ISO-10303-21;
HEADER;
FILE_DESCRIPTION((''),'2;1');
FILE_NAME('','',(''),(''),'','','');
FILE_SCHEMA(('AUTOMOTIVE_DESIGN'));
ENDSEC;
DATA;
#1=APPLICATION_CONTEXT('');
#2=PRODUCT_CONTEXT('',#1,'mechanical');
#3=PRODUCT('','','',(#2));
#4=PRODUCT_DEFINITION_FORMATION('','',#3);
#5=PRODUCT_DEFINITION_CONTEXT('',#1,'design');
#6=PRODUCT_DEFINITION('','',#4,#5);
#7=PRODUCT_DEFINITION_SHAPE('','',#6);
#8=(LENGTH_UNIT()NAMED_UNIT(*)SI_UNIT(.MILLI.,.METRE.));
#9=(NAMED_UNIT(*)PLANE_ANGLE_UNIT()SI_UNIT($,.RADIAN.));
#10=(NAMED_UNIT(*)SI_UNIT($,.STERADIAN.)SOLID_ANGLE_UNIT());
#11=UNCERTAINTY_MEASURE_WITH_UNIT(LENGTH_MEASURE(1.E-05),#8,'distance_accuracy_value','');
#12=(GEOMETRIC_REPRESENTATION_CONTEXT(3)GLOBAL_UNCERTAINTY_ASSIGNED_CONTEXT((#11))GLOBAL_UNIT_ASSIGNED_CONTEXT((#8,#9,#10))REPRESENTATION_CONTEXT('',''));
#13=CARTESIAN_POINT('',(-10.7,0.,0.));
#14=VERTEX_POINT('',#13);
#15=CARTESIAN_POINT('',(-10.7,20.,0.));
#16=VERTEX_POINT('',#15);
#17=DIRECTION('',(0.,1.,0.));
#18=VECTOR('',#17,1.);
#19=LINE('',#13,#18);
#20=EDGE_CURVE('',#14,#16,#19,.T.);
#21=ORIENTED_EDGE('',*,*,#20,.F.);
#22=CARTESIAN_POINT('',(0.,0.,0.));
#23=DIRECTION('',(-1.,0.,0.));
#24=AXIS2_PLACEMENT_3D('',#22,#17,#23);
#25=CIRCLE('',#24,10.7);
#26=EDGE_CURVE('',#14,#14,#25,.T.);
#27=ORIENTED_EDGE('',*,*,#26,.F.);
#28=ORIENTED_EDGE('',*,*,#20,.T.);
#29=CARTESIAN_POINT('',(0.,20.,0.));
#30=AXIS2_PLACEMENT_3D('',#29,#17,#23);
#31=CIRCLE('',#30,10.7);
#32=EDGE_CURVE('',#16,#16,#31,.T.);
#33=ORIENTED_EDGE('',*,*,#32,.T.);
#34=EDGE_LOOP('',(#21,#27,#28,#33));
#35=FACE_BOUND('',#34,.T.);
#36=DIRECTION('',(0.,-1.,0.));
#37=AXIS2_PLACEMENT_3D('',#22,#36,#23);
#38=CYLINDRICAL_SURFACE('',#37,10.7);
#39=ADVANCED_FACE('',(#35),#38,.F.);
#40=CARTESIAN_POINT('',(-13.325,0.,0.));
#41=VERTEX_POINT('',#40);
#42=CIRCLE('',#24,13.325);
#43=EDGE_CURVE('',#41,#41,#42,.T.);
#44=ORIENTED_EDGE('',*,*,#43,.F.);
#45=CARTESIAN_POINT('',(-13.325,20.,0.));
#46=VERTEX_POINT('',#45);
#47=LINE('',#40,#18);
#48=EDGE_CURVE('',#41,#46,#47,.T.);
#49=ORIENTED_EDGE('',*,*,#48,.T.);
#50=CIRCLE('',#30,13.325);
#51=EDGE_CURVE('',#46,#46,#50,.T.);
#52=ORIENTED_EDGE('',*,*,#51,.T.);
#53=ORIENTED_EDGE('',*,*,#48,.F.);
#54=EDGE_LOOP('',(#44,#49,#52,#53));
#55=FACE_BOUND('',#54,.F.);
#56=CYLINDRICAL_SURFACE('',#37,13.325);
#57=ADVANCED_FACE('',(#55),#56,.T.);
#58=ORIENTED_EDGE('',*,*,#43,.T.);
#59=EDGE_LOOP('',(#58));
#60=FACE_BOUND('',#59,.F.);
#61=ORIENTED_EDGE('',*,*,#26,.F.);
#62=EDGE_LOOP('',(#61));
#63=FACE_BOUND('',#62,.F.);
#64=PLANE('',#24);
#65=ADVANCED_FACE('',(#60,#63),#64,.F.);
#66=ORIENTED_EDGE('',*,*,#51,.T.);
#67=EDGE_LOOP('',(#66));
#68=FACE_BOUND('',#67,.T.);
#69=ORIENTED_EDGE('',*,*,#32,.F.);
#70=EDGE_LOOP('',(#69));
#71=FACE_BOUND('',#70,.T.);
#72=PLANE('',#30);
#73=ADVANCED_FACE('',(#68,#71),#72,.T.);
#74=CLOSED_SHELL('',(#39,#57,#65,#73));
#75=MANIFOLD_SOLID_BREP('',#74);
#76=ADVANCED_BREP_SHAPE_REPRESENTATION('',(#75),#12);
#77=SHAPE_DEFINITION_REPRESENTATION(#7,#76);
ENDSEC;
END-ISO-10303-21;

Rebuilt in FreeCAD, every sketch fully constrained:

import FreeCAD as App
import Part
import Sketcher

doc = App.newDocument("Part")
body = doc.addObject("PartDesign::Body", "Body")

# Sketch on XZ plane
sketch1 = doc.addObject("Sketcher::SketchObject", "Sketch")
body.addObject(sketch1)
sketch1.AttachmentSupport = (doc.XZ_Plane, [""])
sketch1.MapMode = "FlatFace"
sketch1.addGeometry([
    Part.Circle(App.Vector(0, 0, 0), App.Vector(0, 0, 1), 13),
    Part.Circle(App.Vector(0, 0, 0), App.Vector(0, 0, 1), 11),
], False)
sketch1.addConstraint([
    Sketcher.Constraint("Coincident", 0, 3, -1, 1),
    Sketcher.Constraint("Coincident", 1, 3, -1, 1),
    Sketcher.Constraint("Diameter", 1, 21.4),
    Sketcher.Constraint("Diameter", 0, 26.65),
])
pad1 = doc.addObject("PartDesign::Pad", "Pad")
body.addObject(pad1)
pad1.Profile = sketch1
pad1.Length = 20
pad1.Reversed = True

doc.recompute()
